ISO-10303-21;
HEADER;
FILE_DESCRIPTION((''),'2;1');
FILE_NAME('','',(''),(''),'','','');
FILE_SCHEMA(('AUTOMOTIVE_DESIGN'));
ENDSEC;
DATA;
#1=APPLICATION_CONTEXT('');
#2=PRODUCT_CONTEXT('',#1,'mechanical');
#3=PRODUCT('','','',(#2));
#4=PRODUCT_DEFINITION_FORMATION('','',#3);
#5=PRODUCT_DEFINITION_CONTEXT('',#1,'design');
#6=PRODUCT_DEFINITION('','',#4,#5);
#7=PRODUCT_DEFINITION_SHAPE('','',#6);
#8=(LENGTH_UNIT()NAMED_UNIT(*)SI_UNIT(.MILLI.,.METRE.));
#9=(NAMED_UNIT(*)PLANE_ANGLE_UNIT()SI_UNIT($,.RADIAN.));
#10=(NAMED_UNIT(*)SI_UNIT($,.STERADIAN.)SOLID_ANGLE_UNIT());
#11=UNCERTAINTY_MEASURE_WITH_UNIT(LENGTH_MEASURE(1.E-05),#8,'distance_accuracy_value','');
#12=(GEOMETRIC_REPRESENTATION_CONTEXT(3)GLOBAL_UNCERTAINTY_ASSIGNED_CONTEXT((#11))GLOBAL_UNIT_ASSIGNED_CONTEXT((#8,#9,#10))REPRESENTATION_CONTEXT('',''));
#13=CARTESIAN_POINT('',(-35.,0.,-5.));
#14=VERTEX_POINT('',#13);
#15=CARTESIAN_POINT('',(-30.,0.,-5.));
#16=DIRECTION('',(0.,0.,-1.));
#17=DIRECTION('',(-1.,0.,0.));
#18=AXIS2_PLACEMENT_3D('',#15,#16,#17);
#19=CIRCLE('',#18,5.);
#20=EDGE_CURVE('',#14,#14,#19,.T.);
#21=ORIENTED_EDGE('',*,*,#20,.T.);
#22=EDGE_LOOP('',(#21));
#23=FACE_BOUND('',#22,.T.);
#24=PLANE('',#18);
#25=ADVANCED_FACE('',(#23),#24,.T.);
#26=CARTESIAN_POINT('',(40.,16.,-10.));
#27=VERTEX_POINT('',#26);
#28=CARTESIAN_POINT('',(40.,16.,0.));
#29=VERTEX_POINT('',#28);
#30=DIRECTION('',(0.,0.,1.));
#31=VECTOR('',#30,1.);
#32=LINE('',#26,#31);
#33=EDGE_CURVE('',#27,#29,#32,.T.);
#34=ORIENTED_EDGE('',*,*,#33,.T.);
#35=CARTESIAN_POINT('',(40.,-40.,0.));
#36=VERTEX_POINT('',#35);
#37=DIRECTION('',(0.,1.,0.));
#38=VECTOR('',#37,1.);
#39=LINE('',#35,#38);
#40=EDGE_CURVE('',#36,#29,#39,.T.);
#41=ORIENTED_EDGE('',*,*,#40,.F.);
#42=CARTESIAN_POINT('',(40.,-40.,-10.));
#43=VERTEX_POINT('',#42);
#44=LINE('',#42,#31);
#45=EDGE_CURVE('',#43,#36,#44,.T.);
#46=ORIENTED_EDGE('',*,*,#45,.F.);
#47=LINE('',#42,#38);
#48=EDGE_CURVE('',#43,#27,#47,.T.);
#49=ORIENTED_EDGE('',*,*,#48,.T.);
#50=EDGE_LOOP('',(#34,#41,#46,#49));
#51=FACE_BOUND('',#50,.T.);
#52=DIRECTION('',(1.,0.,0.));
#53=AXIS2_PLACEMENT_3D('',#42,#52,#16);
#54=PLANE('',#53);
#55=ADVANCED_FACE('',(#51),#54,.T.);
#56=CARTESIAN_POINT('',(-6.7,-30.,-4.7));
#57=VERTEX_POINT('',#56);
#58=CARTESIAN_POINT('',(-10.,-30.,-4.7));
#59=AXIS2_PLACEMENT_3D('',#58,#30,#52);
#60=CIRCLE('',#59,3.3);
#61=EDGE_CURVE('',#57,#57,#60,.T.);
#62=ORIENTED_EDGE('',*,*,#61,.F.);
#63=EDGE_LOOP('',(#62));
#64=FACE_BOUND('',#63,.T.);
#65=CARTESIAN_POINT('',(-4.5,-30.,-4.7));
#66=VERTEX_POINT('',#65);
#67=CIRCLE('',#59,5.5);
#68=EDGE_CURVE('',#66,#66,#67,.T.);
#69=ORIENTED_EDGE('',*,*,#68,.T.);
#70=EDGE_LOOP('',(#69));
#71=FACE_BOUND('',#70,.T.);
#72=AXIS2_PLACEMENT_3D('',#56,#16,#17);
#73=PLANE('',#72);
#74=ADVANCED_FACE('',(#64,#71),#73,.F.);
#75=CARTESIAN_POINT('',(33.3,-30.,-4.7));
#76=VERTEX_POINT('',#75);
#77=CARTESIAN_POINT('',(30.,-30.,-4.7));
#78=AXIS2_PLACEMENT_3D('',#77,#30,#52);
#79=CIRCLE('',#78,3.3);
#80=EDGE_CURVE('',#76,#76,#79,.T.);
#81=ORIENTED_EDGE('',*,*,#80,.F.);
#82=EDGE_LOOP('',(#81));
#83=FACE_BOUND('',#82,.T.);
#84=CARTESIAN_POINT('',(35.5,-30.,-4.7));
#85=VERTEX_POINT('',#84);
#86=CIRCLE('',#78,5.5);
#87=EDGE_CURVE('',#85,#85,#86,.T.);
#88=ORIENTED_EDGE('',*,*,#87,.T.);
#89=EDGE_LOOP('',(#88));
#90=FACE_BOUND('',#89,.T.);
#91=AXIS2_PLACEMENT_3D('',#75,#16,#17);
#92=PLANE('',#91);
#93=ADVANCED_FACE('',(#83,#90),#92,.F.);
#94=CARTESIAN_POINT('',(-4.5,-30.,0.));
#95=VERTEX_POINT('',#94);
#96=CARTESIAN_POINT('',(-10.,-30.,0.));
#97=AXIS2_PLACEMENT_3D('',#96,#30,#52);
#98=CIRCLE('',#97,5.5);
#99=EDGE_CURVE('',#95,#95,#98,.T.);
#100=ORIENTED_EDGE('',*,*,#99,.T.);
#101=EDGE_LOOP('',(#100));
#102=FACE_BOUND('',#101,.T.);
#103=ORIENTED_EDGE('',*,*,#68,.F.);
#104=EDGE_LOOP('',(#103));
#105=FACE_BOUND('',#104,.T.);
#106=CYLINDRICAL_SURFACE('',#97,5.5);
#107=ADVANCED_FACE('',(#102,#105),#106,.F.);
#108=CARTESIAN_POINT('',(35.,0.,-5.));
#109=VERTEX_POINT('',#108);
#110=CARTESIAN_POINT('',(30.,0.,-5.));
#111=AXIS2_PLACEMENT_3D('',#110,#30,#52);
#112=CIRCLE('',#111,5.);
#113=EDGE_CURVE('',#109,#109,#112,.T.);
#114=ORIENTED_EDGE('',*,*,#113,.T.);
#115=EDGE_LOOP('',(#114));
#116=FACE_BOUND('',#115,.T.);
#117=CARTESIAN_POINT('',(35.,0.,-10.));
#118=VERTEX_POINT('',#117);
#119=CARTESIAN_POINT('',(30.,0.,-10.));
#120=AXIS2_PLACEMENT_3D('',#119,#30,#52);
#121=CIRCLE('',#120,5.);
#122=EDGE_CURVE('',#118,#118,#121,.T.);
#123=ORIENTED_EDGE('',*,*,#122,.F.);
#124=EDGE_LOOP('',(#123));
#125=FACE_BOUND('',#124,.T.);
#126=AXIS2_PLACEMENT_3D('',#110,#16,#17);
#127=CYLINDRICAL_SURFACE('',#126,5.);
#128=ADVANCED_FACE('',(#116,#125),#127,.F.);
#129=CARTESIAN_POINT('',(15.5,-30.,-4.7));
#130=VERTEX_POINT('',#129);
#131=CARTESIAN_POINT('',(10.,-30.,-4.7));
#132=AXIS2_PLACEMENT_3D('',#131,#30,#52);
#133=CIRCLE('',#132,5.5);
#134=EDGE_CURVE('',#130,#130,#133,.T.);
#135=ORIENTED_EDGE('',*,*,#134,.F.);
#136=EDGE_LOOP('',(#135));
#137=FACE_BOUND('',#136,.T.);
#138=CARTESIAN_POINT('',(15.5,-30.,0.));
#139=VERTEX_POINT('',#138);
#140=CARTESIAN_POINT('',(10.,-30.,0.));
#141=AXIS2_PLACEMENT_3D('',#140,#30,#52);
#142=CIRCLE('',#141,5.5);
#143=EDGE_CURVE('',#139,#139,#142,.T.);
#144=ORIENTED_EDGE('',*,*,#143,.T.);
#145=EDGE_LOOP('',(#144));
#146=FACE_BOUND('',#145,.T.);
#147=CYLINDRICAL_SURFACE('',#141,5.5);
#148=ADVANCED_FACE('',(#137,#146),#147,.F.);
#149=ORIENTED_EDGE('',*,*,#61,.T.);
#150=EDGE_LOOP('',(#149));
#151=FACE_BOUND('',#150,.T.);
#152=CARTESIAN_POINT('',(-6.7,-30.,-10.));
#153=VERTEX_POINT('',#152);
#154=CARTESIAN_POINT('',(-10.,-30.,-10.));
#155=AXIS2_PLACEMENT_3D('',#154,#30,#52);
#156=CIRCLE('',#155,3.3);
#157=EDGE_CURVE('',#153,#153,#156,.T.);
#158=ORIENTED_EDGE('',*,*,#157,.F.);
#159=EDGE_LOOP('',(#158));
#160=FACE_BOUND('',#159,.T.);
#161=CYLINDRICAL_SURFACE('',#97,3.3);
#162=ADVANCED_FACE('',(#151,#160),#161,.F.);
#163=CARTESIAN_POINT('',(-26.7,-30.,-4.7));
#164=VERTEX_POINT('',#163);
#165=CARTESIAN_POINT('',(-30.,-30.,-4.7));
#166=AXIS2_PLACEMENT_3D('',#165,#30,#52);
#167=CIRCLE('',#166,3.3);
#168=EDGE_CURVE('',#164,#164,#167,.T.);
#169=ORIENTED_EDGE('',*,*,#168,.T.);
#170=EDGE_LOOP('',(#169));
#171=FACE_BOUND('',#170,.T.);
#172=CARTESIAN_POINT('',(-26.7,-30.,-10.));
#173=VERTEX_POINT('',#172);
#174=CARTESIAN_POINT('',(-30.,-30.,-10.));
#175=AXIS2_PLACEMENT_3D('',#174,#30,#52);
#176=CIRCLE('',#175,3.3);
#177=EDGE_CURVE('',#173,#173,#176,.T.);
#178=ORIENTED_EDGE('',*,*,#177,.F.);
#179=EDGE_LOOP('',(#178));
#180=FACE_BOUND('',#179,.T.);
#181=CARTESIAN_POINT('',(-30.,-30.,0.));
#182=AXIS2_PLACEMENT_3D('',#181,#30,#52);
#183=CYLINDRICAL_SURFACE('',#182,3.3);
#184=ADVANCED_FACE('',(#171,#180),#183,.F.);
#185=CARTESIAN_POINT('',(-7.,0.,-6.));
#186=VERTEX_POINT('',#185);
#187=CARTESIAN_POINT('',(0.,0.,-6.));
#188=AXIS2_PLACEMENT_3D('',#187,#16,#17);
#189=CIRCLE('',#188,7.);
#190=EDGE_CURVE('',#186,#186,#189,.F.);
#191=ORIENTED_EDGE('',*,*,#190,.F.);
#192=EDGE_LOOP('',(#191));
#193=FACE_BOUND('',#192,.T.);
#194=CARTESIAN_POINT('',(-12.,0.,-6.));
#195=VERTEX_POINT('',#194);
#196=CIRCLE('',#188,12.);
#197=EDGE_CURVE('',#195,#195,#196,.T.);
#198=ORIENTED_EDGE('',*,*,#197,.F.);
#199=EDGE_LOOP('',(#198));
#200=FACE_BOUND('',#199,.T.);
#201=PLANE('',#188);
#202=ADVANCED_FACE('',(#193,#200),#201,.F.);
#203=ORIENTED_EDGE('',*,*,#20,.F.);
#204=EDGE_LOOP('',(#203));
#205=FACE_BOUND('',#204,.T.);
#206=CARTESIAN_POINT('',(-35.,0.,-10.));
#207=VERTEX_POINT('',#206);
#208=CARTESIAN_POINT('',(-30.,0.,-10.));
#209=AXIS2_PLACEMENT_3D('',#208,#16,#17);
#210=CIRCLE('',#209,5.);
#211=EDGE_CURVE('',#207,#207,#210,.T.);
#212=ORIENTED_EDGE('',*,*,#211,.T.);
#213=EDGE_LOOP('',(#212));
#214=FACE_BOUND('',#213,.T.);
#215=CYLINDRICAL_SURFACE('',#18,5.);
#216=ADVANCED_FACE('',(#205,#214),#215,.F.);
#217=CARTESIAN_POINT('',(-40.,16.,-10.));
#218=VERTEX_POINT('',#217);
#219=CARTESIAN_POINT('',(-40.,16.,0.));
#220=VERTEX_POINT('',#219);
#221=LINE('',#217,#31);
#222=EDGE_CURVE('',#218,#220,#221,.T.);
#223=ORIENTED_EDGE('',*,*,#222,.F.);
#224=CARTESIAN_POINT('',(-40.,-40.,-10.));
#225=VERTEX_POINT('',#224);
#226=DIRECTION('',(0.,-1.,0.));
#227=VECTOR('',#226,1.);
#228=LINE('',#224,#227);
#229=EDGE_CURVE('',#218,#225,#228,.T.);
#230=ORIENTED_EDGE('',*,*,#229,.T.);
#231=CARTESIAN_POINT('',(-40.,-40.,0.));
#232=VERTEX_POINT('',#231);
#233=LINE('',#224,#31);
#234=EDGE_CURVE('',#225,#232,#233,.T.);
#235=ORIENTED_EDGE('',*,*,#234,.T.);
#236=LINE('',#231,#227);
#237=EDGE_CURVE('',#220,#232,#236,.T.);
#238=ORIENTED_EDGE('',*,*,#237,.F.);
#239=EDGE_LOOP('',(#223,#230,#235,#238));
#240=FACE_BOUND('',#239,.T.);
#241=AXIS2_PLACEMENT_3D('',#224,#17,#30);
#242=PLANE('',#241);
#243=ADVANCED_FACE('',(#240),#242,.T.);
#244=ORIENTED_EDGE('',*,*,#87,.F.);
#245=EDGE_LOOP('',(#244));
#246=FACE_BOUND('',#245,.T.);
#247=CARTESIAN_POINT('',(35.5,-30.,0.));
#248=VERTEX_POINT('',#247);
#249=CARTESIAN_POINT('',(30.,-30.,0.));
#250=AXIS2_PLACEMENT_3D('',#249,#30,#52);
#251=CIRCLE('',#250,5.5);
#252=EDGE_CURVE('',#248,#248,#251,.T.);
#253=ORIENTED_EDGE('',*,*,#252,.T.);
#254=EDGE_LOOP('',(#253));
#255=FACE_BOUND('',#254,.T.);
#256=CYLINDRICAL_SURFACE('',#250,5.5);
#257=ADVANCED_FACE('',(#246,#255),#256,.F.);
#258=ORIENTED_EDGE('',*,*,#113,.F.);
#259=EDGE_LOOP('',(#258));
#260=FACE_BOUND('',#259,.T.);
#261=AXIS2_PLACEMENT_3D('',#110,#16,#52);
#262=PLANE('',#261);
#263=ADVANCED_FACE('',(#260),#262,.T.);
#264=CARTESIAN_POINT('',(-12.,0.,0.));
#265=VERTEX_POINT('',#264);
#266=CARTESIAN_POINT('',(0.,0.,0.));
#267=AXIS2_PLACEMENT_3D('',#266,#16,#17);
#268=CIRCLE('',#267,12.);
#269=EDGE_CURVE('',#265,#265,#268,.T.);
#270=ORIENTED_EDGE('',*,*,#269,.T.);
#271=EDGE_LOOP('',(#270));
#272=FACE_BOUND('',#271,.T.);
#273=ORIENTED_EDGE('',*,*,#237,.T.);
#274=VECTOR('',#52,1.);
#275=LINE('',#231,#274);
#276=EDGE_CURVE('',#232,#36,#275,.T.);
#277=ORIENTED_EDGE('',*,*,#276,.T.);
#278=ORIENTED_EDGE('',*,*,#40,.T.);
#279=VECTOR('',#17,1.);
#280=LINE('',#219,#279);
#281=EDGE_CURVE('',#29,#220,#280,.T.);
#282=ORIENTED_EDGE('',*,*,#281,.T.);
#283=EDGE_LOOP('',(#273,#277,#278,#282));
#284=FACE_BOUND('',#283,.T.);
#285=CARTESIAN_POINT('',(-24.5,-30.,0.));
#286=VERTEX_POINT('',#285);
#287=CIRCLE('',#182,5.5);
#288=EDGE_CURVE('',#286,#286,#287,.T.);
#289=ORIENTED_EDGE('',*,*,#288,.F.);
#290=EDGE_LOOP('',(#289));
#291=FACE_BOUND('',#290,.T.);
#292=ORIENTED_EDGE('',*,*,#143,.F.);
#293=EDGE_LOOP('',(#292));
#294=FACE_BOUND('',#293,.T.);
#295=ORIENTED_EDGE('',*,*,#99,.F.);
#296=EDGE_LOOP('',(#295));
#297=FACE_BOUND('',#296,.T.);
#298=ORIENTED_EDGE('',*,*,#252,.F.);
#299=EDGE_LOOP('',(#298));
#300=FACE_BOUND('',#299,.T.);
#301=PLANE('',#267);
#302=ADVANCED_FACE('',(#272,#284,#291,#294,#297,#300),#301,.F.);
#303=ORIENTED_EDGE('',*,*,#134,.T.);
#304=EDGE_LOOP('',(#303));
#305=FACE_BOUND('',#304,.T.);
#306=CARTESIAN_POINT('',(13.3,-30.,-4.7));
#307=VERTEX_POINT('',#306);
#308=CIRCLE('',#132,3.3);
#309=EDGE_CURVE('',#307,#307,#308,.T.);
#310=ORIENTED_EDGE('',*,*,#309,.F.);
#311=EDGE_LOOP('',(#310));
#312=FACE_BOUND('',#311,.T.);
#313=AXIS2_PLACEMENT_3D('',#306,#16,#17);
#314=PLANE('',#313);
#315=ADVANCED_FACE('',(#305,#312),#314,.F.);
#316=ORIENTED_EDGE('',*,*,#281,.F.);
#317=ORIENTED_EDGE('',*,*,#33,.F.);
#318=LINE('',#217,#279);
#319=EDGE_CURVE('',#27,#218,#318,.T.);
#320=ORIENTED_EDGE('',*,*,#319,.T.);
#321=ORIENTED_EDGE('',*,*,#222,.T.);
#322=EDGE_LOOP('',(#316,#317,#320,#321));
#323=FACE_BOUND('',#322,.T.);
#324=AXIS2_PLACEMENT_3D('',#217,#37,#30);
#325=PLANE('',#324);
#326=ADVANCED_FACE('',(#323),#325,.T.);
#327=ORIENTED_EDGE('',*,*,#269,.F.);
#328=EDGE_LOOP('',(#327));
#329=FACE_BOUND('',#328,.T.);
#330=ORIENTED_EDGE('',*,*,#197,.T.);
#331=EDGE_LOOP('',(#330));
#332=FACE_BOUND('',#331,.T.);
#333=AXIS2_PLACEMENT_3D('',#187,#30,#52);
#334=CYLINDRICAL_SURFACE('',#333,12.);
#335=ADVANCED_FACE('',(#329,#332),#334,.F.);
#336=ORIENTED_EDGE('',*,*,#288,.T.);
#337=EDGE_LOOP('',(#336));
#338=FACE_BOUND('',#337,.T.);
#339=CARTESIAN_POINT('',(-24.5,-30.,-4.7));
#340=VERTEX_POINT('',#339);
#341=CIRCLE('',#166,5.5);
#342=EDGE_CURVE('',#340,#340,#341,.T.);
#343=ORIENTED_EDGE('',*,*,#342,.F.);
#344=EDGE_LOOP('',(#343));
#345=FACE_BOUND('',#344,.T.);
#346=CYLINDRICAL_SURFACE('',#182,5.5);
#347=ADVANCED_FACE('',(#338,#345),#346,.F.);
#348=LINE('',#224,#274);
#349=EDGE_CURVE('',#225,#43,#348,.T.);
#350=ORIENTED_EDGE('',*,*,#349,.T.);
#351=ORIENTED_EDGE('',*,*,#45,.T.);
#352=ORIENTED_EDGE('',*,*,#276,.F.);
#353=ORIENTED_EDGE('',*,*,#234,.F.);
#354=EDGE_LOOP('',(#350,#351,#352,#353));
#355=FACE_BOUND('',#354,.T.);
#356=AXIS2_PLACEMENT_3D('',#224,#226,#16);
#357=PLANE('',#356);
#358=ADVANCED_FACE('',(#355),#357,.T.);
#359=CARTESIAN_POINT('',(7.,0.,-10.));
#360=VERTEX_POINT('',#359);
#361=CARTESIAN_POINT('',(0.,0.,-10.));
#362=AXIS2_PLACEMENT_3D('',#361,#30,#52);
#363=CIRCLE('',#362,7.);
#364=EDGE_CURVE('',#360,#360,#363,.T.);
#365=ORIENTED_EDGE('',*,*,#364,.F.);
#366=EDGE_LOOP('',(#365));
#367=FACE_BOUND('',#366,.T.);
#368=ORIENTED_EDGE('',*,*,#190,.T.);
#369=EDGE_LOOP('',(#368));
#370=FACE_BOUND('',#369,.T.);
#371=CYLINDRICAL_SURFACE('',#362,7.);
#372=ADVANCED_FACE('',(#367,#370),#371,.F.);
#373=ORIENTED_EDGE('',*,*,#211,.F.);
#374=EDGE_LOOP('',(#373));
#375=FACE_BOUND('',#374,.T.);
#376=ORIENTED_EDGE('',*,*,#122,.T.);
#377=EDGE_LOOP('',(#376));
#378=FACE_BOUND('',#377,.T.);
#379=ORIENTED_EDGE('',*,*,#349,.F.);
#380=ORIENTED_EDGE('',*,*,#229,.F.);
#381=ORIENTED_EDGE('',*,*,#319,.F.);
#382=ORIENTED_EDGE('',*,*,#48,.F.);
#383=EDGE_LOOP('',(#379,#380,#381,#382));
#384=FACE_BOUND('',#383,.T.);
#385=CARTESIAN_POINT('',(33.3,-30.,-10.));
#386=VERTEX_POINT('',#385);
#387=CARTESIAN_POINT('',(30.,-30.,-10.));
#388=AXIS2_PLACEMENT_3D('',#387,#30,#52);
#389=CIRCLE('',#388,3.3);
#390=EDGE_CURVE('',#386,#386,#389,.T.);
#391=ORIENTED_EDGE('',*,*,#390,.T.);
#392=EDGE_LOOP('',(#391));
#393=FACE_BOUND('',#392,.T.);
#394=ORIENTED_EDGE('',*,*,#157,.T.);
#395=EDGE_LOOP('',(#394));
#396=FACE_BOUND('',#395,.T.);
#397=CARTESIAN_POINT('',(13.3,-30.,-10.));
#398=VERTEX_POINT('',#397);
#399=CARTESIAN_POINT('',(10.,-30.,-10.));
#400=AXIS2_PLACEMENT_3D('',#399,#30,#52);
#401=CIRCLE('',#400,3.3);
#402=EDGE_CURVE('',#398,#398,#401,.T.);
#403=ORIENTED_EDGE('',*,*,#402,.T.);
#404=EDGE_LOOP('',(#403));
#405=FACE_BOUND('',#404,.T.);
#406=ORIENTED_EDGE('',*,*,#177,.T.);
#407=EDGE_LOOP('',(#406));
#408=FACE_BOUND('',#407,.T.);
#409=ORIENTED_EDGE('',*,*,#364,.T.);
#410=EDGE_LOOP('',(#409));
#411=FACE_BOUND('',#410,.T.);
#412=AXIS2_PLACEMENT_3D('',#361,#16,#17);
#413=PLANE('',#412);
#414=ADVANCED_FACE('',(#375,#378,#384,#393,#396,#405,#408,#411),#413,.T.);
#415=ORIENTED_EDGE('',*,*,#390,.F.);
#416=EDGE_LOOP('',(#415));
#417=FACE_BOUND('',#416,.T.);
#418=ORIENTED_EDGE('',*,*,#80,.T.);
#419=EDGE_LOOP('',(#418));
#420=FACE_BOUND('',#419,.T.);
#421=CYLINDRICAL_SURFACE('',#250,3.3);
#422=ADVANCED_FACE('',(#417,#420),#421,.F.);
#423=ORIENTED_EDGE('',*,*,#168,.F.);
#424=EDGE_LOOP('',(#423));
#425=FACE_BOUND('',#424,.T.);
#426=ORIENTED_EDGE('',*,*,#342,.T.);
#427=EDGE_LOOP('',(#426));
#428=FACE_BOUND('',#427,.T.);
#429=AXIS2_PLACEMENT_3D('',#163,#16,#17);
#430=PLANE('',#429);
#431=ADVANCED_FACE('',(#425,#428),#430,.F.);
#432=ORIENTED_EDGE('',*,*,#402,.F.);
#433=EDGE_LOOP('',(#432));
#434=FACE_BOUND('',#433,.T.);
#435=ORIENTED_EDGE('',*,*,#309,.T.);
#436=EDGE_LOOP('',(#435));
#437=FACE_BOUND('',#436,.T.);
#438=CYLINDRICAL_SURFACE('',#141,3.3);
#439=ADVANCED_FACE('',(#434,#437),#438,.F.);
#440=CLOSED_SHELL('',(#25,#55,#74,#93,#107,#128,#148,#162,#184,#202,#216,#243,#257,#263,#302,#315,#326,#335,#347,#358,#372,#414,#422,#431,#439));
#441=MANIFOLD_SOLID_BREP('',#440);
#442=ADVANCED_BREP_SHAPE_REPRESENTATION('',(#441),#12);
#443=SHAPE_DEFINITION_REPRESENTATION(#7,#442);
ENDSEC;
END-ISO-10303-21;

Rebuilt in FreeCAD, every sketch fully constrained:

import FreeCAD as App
import Part
import Sketcher
from FreeCAD import Vector


def add_polygon(sketch, points):
    """Adds a closed chain of lines whose ends are joined by coincident constraints."""
    first, n = sketch.GeometryCount, len(points)
    for a, b in zip(points, points[1:] + points[:1]):
        sketch.addGeometry(Part.LineSegment(App.Vector(*a, 0), App.Vector(*b, 0)), False)
    for i in range(n):
        sketch.addConstraint(Sketcher.Constraint("Coincident", first + i, 2, first + (i + 1) % n, 1))

doc = App.newDocument("Part")
body = doc.addObject("PartDesign::Body", "Body")

# Sketch on XY plane
sketch1 = body.newObject("Sketcher::SketchObject", "Sketch")
sketch1.AttachmentSupport = (doc.getObject("XY_Plane"), [""])
sketch1.MapMode = "FlatFace"
add_polygon(sketch1, [(-40, 16), (-40, -40), (40, -40), (40, 16)])  # lines 0-3
sketch1.addConstraint([
    Sketcher.Constraint("Vertical", 0),
    Sketcher.Constraint("Horizontal", 1),
    Sketcher.Constraint("Vertical", 2),
    Sketcher.Constraint("Horizontal", 3),
    Sketcher.Constraint("DistanceX", 1, 1, 1, 2, 80.0),
    Sketcher.Constraint("DistanceY", 0, 2, 0, 1, 56.0),
    Sketcher.Constraint("DistanceX", 0, 2, -1, 1, 40.0),
    Sketcher.Constraint("DistanceY", 0, 2, -1, 1, 40.0),
])
pad1 = body.newObject("PartDesign::Pad", "Pad")
pad1.Profile = sketch1
pad1.Length = 10
pad1.Reversed = True

# Sketch on XY plane
sketch2 = body.newObject("Sketcher::SketchObject", "Sketch001")
sketch2.AttachmentSupport = (doc.getObject("XY_Plane"), [""])
sketch2.MapMode = "FlatFace"
sketch2.addGeometry([
    Part.Circle(Vector(30, -30, 0), Vector(0, 0, 1), 3.3),
    Part.Circle(Vector(-30, -30, 0), Vector(0, 0, 1), 3.3),
    Part.Circle(Vector(10, -30, 0), Vector(0, 0, 1), 3.3),
    Part.Circle(Vector(-10, -30, 0), Vector(0, 0, 1), 3.3),
], False)
sketch2.addConstraint([
    Sketcher.Constraint("Equal", 0, 1),
    Sketcher.Constraint("Equal", 1, 2),
    Sketcher.Constraint("Equal", 2, 3),
    Sketcher.Constraint("Symmetric", 0, 3, 1, 3, -2),
    Sketcher.Constraint("Symmetric", 2, 3, 3, 3, -2),
    Sketcher.Constraint("Horizontal", 1, 3, 2, 3),
    Sketcher.Constraint("Diameter", 0, 6.6),
    Sketcher.Constraint("DistanceX", -1, 1, 0, 3, 30.0),
    Sketcher.Constraint("DistanceY", 0, 3, -1, 1, 30.0),
    Sketcher.Constraint("DistanceX", -1, 1, 2, 3, 10.0),
])
doc.recompute()
hole = body.newObject("PartDesign::Hole", "Hole")
hole.Profile = sketch2
hole.ThreadType = "None"
hole.Diameter = 6.6
hole.DepthType = "ThroughAll"
hole.HoleCutType = "Counterbore"
hole.HoleCutDiameter = 11
hole.HoleCutDepth = 4.7

# Sketch on XY plane
sketch3 = body.newObject("Sketcher::SketchObject", "Sketch002")
sketch3.AttachmentSupport = (doc.getObject("XY_Plane"), [""])
sketch3.MapMode = "FlatFace"
sketch3.addGeometry(Part.Circle(Vector(0, 0, 0), Vector(0, 0, 1), 7), False)
sketch3.addConstraint([
    Sketcher.Constraint("Coincident", 0, 3, -1, 1),
    Sketcher.Constraint("Diameter", 0, 14.0),
])
pocket1 = body.newObject("PartDesign::Pocket", "Pocket")
pocket1.Profile = sketch3
pocket1.Length = 10

# Sketch on XY plane
sketch4 = body.newObject("Sketcher::SketchObject", "Sketch003")
sketch4.AttachmentSupport = (doc.getObject("XY_Plane"), [""])
sketch4.MapMode = "FlatFace"
sketch4.addGeometry(Part.Circle(Vector(0, 0, 0), Vector(0, 0, 1), 12), False)
sketch4.addConstraint([
    Sketcher.Constraint("Coincident", 0, 3, -1, 1),
    Sketcher.Constraint("Diameter", 0, 24.0),
])
pocket2 = body.newObject("PartDesign::Pocket", "Pocket001")
pocket2.Profile = sketch4
pocket2.Length = 6

# Sketch on XY plane
sketch5 = body.newObject("Sketcher::SketchObject", "Sketch004")
sketch5.AttachmentSupport = (doc.getObject("XY_Plane"), [""])
sketch5.MapMode = "FlatFace"
sketch5.AttachmentOffset = App.Placement(Vector(0, 0, -10), App.Rotation())
sketch5.addGeometry(Part.Circle(Vector(-30, 0, 0), Vector(0, 0, 1), 5), False)
sketch5.addConstraint([
    Sketcher.Constraint("PointOnObject", 0, 3, -1),
    Sketcher.Constraint("Diameter", 0, 10.0),
    Sketcher.Constraint("DistanceX", 0, 3, -1, 1, 30.0),
])
pocket3 = body.newObject("PartDesign::Pocket", "Pocket002")
pocket3.Profile = sketch5
pocket3.Length = 5
pocket3.Reversed = True
doc.recompute()

mirrored = body.newObject("PartDesign::Mirrored", "Mirrored")
mirrored.Originals = [pocket3]
mirrored.MirrorPlane = (doc.getObject("YZ_Plane"), [""])
body.Tip = mirrored

doc.recompute()
